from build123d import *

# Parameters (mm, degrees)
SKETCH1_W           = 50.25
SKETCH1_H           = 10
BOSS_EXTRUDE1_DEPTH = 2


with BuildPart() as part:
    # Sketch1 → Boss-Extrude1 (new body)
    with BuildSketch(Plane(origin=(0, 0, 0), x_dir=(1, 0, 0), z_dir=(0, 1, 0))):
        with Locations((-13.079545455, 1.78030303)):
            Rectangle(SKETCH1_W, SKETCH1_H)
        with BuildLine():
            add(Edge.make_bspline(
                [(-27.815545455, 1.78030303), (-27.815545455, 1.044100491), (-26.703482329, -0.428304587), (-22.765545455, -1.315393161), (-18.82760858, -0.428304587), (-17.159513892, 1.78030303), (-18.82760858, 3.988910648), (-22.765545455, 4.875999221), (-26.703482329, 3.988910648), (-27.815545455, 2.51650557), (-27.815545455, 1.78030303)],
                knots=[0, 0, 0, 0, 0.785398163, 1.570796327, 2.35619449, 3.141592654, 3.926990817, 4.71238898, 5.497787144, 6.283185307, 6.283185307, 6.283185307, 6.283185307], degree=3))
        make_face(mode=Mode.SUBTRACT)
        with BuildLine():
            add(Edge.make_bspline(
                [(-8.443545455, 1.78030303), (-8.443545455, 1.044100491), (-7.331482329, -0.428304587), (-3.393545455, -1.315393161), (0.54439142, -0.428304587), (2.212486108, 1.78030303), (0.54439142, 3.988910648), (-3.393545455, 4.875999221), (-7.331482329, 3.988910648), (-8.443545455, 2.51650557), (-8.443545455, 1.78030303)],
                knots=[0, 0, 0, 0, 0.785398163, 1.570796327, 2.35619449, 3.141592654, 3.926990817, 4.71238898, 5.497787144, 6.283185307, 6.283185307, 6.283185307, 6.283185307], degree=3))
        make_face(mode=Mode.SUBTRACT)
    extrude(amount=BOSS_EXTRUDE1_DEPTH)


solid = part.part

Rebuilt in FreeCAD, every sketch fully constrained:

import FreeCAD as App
import Part
import Sketcher
Q = App.Units.Quantity

doc = App.newDocument("Part")
body = doc.addObject("PartDesign::Body", "Body")

# Sketch on XZ plane
sketch1 = body.newObject("Sketcher::SketchObject", "Sketch")
sketch1.AttachmentSupport = (doc.getObject("XZ_Plane"), [""])
sketch1.MapMode = "FlatFace"
sketch1.addGeometry(Part.LineSegment(App.Vector(-38.204545, -6.780303, 0), App.Vector(-38.204545, 3.219697, 0)), False)
sketch1.addGeometry(Part.LineSegment(App.Vector(-38.204545, 3.219697, 0), App.Vector(12.045455, 3.219697, 0)), False)
sketch1.addGeometry(Part.LineSegment(App.Vector(12.045455, 3.219697, 0), App.Vector(12.045455, -6.780303, 0)), False)
sketch1.addGeometry(Part.LineSegment(App.Vector(12.045455, -6.780303, 0), App.Vector(-38.204545, -6.780303, 0)), False)
sketch1.addGeometry(Part.BSplineCurve([App.Vector(-27.815545, -1.780303, 0), App.Vector(-27.815545, -1.0441, 0), App.Vector(-26.703482, 0.428305, 0), App.Vector(-22.765545, 1.315393, 0), App.Vector(-18.827609, 0.428305, 0), App.Vector(-17.159514, -1.780303, 0), App.Vector(-18.827609, -3.988911, 0), App.Vector(-22.765545, -4.875999, 0), App.Vector(-26.703482, -3.988911, 0), App.Vector(-27.815545, -2.516506, 0), App.Vector(-27.815545, -1.780303, 0)], [4, 1, 1, 1, 1, 1, 1, 1, 4], [0, 0.785398163, 1.570796327, 2.35619449, 3.141592654, 3.926990817, 4.71238898, 5.497787144, 6.283185307], False, 3, [1, 1, 1, 1, 1, 1, 1, 1, 1, 1, 1], False), False)
sketch1.addGeometry(Part.BSplineCurve([App.Vector(-8.443545, -1.780303, 0), App.Vector(-8.443545, -1.0441, 0), App.Vector(-7.331482, 0.428305, 0), App.Vector(-3.393545, 1.315393, 0), App.Vector(0.544391, 0.428305, 0), App.Vector(2.212486, -1.780303, 0), App.Vector(0.544391, -3.988911, 0), App.Vector(-3.393545, -4.875999, 0), App.Vector(-7.331482, -3.988911, 0), App.Vector(-8.443545, -2.516506, 0), App.Vector(-8.443545, -1.780303, 0)], [4, 1, 1, 1, 1, 1, 1, 1, 4], [0, 0.785398163, 1.570796327, 2.35619449, 3.141592654, 3.926990817, 4.71238898, 5.497787144, 6.283185307], False, 3, [1, 1, 1, 1, 1, 1, 1, 1, 1, 1, 1], False), False)
sketch1.addConstraint(Sketcher.Constraint("Block", 4))
sketch1.addConstraint(Sketcher.Constraint("Block", 5))
sketch1.addConstraint(Sketcher.Constraint("Coincident", 0, 2, 1, 1))
sketch1.addConstraint(Sketcher.Constraint("Coincident", 1, 2, 2, 1))
sketch1.addConstraint(Sketcher.Constraint("Coincident", 2, 2, 3, 1))
sketch1.addConstraint(Sketcher.Constraint("Coincident", 3, 2, 0, 1))
sketch1.addConstraint(Sketcher.Constraint("Vertical", 0))
sketch1.addConstraint(Sketcher.Constraint("Horizontal", 1))
sketch1.addConstraint(Sketcher.Constraint("Vertical", 2))
sketch1.addConstraint(Sketcher.Constraint("Horizontal", 3))
sketch1.addConstraint(Sketcher.Constraint("DistanceY", 0, 1, 0, 2, Q("10 mm")))
sketch1.addConstraint(Sketcher.Constraint("DistanceX", 1, 1, 1, 2, Q("50.25 mm")))
sketch1.addConstraint(Sketcher.Constraint("DistanceX", 0, 2, -1, 1, Q("38.204545 mm")))
sketch1.addConstraint(Sketcher.Constraint("DistanceY", -1, 1, 0, 2, Q("3.219697 mm")))
pad1 = body.newObject("PartDesign::Pad", "Pad")
pad1.Profile = sketch1
pad1.Length = 2
pad1.Reversed = True

doc.recompute()
